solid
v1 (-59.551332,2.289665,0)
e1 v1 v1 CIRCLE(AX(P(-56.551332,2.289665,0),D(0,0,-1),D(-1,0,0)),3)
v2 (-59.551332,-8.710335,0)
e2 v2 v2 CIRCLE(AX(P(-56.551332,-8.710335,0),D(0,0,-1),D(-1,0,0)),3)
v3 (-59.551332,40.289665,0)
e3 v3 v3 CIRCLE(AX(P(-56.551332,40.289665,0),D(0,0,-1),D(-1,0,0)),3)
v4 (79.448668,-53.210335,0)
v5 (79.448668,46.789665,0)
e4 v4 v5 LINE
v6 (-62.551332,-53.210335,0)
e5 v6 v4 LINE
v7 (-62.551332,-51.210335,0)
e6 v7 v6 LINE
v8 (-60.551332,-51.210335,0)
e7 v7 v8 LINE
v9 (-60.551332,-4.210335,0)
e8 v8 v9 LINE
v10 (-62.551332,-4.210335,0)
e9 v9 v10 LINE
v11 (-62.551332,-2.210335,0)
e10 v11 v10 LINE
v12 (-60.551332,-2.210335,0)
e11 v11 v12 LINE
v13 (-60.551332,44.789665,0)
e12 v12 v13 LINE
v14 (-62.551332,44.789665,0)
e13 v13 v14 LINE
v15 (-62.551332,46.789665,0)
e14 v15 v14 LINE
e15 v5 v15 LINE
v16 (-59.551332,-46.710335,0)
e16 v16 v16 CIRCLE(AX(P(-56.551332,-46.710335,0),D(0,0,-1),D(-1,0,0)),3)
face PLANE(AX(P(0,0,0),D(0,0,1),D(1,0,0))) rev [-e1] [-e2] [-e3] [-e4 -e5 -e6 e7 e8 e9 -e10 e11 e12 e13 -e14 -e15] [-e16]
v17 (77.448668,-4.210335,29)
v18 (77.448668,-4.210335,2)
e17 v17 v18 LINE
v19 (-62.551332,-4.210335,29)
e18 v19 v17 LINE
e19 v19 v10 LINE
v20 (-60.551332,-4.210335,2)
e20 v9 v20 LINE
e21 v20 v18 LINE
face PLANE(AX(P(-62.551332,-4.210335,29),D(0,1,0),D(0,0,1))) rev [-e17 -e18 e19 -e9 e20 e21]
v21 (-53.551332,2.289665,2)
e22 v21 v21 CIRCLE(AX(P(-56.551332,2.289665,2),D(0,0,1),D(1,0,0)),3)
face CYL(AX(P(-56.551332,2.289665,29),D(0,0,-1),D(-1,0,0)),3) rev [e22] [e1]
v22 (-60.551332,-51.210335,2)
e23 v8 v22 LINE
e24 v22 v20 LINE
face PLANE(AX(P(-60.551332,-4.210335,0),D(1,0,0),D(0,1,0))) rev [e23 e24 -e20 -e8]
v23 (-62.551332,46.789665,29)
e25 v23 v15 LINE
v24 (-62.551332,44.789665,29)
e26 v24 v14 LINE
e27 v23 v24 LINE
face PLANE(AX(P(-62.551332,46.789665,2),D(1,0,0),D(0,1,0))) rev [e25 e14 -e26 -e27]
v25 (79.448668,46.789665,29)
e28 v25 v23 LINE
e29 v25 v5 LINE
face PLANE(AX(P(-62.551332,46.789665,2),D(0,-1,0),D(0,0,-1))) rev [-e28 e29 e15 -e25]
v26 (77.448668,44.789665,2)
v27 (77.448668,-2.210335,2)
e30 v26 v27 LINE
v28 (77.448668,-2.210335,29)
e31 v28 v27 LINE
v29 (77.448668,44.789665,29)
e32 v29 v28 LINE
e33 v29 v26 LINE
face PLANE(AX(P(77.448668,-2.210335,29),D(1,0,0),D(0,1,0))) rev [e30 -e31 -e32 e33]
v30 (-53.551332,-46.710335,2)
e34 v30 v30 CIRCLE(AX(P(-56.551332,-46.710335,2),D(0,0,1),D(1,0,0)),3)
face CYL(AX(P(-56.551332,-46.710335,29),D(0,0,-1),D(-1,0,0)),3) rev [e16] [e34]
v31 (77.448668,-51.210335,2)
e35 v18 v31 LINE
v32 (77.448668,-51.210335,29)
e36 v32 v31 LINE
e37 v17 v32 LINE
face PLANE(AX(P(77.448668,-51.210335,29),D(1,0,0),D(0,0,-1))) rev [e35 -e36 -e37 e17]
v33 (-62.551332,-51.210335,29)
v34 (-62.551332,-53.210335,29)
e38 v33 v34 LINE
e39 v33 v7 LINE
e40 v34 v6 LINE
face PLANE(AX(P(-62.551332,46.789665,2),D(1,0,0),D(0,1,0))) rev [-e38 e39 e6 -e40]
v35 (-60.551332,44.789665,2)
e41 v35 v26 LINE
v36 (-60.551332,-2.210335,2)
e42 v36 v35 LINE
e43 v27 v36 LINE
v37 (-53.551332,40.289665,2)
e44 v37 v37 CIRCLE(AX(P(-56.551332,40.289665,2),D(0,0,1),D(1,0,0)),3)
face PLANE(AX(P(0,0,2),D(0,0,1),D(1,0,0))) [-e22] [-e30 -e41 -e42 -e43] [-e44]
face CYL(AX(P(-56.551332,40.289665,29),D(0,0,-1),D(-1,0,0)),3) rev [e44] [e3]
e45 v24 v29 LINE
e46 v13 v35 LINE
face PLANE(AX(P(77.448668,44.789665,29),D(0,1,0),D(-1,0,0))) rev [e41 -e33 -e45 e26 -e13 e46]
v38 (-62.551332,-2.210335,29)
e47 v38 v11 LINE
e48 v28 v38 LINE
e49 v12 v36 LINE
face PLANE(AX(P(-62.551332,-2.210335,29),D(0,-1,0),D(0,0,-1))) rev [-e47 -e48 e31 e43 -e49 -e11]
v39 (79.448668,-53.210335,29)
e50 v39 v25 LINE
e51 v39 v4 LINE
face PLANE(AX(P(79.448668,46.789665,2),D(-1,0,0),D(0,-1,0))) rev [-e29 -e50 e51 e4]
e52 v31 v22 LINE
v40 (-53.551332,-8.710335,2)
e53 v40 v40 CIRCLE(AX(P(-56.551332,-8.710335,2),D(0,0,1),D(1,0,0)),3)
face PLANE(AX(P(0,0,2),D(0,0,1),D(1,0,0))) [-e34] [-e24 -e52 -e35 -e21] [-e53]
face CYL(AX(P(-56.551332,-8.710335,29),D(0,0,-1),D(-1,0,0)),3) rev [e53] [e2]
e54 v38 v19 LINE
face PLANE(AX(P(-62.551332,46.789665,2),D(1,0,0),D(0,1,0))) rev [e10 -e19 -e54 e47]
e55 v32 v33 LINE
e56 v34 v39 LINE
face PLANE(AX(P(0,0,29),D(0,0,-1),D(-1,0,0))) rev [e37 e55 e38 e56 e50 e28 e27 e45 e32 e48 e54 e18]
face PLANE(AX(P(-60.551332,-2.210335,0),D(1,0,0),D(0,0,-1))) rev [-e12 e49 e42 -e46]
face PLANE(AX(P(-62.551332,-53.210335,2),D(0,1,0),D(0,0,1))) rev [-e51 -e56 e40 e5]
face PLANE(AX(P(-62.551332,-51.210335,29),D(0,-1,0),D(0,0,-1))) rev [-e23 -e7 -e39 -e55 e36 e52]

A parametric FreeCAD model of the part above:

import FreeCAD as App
import Part
import Sketcher
from FreeCAD import Vector
Q = App.Units.Quantity


def add_polygon(sketch, points):
    """Adds a closed chain of lines whose ends are joined by coincident constraints."""
    first, n = sketch.GeometryCount, len(points)
    for a, b in zip(points, points[1:] + points[:1]):
        sketch.addGeometry(Part.LineSegment(App.Vector(*a, 0), App.Vector(*b, 0)), False)
    for i in range(n):
        sketch.addConstraint(Sketcher.Constraint("Coincident", first + i, 2, first + (i + 1) % n, 1))

doc = App.newDocument("Part")
body = doc.addObject("PartDesign::Body", "Body")

# Sketch on XY plane
sketch1 = doc.addObject("Sketcher::SketchObject", "Sketch")
body.addObject(sketch1)
sketch1.AttachmentSupport = (doc.XY_Plane, [""])
sketch1.MapMode = "FlatFace"
add_polygon(sketch1, [(-63, 47), (-63, -53), (79, -53), (79, 47)])  # lines 0-3
sketch1.addConstraint([
    Sketcher.Constraint("Vertical", 0),
    Sketcher.Constraint("Horizontal", 1),
    Sketcher.Constraint("Vertical", 2),
    Sketcher.Constraint("Horizontal", 3),
    Sketcher.Constraint("DistanceX", 1, 1, 1, 2, Q("142 mm")),
    Sketcher.Constraint("DistanceY", 0, 2, 0, 1, Q("100 mm")),
    Sketcher.Constraint("DistanceX", 0, 2, -1, 1, Q("62.551332 mm")),
    Sketcher.Constraint("DistanceY", 0, 2, -1, 1, Q("53.210335 mm")),
])
pad1 = doc.addObject("PartDesign::Pad", "Pad")
body.addObject(pad1)
pad1.Profile = sketch1
pad1.Length = 2

# Sketch on XY plane
sketch2 = doc.addObject("Sketcher::SketchObject", "Sketch001")
body.addObject(sketch2)
sketch2.AttachmentSupport = (doc.XY_Plane, [""])
sketch2.MapMode = "FlatFace"
sketch2.AttachmentOffset = App.Placement(Vector(0, 0, 2), App.Rotation())
add_polygon(sketch2, [(-62.6, -53.2), (79.4, -53.2), (79.4, 46.8), (-62.6, 46.8), (-62.6, 44.8), (77.4, 44.8), (77.4, -2.2), (-62.6, -2.2), (-62.6, -4.2), (77.4, -4.2), (77.4, -51.2), (-62.6, -51.2)])  # lines 0-11
sketch2.addConstraint([
    Sketcher.Constraint("Horizontal", 0),
    Sketcher.Constraint("Vertical", 1),
    Sketcher.Constraint("Horizontal", 2),
    Sketcher.Constraint("Vertical", 3),
    Sketcher.Constraint("Horizontal", 4),
    Sketcher.Constraint("Vertical", 5),
    Sketcher.Constraint("Horizontal", 6),
    Sketcher.Constraint("Vertical", 7),
    Sketcher.Constraint("Horizontal", 8),
    Sketcher.Constraint("Vertical", 9),
    Sketcher.Constraint("Horizontal", 10),
    Sketcher.Constraint("Vertical", 11),
    Sketcher.Constraint("Vertical", 3, 2, 6, 2),
    Sketcher.Constraint("Vertical", 5, 2, 8, 2),
    Sketcher.Constraint("Vertical", 7, 2, 10, 2),
    Sketcher.Constraint("Equal", 3, 7),
    Sketcher.Constraint("Equal", 5, 9),
    Sketcher.Constraint("Equal", 7, 11),
    Sketcher.Constraint("DistanceX", 0, 1, 0, 2, Q("142 mm")),
    Sketcher.Constraint("DistanceX", 4, 1, 4, 2, Q("140 mm")),
    Sketcher.Constraint("DistanceY", 1, 1, 1, 2, Q("100 mm")),
    Sketcher.Constraint("DistanceY", 3, 2, 3, 1, Q("2 mm")),
    Sketcher.Constraint("DistanceX", -1, 1, 0, 2, Q("79.448668 mm")),
    Sketcher.Constraint("DistanceY", 0, 2, -1, 1, Q("53.210335 mm")),
])
pad2 = doc.addObject("PartDesign::Pad", "Pad001")
body.addObject(pad2)
pad2.Profile = sketch2
pad2.Length = 27

# Sketch on XY plane
sketch3 = doc.addObject("Sketcher::SketchObject", "Sketch002")
body.addObject(sketch3)
sketch3.AttachmentSupport = (doc.XY_Plane, [""])
sketch3.MapMode = "FlatFace"
sketch3.AttachmentOffset = App.Placement(Vector(0, 0, 2), App.Rotation())
add_polygon(sketch3, [(-62.6, 44.8), (-62.6, -2.2), (-60.6, -2.2), (-60.6, 44.8)])  # lines 0-3
add_polygon(sketch3, [(-62.6, -4.2), (-62.6, -51.2), (-60.6, -51.2), (-60.6, -4.2)])  # lines 4-7
sketch3.addConstraint([
    Sketcher.Constraint("Vertical", 0),
    Sketcher.Constraint("Horizontal", 1),
    Sketcher.Constraint("Vertical", 2),
    Sketcher.Constraint("Horizontal", 3),
    Sketcher.Constraint("Vertical", 4),
    Sketcher.Constraint("Horizontal", 5),
    Sketcher.Constraint("Vertical", 6),
    Sketcher.Constraint("Horizontal", 7),
    Sketcher.Constraint("Vertical", 3, 2, 4, 2),
    Sketcher.Constraint("Vertical", 2, 2, 5, 2),
    Sketcher.Constraint("Equal", 2, 4),
    Sketcher.Constraint("DistanceX", 1, 1, 1, 2, Q("2 mm")),
    Sketcher.Constraint("DistanceY", 0, 2, 0, 1, Q("47 mm")),
    Sketcher.Constraint("DistanceY", 4, 2, 0, 2, Q("49 mm")),
    Sketcher.Constraint("DistanceX", 0, 2, -1, 1, Q("62.551332 mm")),
    Sketcher.Constraint("DistanceY", 0, 2, -1, 1, Q("2.210335 mm")),
])
pocket1 = doc.addObject("PartDesign::Pocket", "Pocket")
body.addObject(pocket1)
pocket1.Profile = sketch3
pocket1.Type = "ThroughAll"

# Sketch on XY plane
sketch4 = doc.addObject("Sketcher::SketchObject", "Sketch003")
body.addObject(sketch4)
sketch4.AttachmentSupport = (doc.XY_Plane, [""])
sketch4.MapMode = "FlatFace"
sketch4.addGeometry([
    Part.Circle(Vector(-56.6, 40.3, 0), Vector(0, 0, 1), 3),
    Part.Circle(Vector(-56.6, 2.3, 0), Vector(0, 0, 1), 3),
    Part.Circle(Vector(-56.6, -8.7, 0), Vector(0, 0, 1), 3),
    Part.Circle(Vector(-56.6, -46.7, 0), Vector(0, 0, 1), 3),
], False)
sketch4.addConstraint([
    Sketcher.Constraint("Equal", 0, 1),
    Sketcher.Constraint("Equal", 1, 2),
    Sketcher.Constraint("Equal", 2, 3),
    Sketcher.Constraint("Vertical", 0, 3, 1, 3),
    Sketcher.Constraint("Vertical", 1, 3, 2, 3),
    Sketcher.Constraint("Vertical", 2, 3, 3, 3),
    Sketcher.Constraint("Diameter", 0, Q("6 mm")),
    Sketcher.Constraint("DistanceY", 1, 3, 0, 3, Q("38 mm")),
    Sketcher.Constraint("DistanceY", 2, 3, 1, 3, Q("11 mm")),
    Sketcher.Constraint("DistanceY", 3, 3, 2, 3, Q("38 mm")),
    Sketcher.Constraint("DistanceX", 0, 3, -1, 1, Q("56.551332 mm")),
    Sketcher.Constraint("DistanceY", -1, 1, 0, 3, Q("40.289665 mm")),
])
pocket2 = doc.addObject("PartDesign::Pocket", "Pocket001")
body.addObject(pocket2)
pocket2.Profile = sketch4
pocket2.Type = "ThroughAll"
pocket2.Reversed = True

doc.recompute()
